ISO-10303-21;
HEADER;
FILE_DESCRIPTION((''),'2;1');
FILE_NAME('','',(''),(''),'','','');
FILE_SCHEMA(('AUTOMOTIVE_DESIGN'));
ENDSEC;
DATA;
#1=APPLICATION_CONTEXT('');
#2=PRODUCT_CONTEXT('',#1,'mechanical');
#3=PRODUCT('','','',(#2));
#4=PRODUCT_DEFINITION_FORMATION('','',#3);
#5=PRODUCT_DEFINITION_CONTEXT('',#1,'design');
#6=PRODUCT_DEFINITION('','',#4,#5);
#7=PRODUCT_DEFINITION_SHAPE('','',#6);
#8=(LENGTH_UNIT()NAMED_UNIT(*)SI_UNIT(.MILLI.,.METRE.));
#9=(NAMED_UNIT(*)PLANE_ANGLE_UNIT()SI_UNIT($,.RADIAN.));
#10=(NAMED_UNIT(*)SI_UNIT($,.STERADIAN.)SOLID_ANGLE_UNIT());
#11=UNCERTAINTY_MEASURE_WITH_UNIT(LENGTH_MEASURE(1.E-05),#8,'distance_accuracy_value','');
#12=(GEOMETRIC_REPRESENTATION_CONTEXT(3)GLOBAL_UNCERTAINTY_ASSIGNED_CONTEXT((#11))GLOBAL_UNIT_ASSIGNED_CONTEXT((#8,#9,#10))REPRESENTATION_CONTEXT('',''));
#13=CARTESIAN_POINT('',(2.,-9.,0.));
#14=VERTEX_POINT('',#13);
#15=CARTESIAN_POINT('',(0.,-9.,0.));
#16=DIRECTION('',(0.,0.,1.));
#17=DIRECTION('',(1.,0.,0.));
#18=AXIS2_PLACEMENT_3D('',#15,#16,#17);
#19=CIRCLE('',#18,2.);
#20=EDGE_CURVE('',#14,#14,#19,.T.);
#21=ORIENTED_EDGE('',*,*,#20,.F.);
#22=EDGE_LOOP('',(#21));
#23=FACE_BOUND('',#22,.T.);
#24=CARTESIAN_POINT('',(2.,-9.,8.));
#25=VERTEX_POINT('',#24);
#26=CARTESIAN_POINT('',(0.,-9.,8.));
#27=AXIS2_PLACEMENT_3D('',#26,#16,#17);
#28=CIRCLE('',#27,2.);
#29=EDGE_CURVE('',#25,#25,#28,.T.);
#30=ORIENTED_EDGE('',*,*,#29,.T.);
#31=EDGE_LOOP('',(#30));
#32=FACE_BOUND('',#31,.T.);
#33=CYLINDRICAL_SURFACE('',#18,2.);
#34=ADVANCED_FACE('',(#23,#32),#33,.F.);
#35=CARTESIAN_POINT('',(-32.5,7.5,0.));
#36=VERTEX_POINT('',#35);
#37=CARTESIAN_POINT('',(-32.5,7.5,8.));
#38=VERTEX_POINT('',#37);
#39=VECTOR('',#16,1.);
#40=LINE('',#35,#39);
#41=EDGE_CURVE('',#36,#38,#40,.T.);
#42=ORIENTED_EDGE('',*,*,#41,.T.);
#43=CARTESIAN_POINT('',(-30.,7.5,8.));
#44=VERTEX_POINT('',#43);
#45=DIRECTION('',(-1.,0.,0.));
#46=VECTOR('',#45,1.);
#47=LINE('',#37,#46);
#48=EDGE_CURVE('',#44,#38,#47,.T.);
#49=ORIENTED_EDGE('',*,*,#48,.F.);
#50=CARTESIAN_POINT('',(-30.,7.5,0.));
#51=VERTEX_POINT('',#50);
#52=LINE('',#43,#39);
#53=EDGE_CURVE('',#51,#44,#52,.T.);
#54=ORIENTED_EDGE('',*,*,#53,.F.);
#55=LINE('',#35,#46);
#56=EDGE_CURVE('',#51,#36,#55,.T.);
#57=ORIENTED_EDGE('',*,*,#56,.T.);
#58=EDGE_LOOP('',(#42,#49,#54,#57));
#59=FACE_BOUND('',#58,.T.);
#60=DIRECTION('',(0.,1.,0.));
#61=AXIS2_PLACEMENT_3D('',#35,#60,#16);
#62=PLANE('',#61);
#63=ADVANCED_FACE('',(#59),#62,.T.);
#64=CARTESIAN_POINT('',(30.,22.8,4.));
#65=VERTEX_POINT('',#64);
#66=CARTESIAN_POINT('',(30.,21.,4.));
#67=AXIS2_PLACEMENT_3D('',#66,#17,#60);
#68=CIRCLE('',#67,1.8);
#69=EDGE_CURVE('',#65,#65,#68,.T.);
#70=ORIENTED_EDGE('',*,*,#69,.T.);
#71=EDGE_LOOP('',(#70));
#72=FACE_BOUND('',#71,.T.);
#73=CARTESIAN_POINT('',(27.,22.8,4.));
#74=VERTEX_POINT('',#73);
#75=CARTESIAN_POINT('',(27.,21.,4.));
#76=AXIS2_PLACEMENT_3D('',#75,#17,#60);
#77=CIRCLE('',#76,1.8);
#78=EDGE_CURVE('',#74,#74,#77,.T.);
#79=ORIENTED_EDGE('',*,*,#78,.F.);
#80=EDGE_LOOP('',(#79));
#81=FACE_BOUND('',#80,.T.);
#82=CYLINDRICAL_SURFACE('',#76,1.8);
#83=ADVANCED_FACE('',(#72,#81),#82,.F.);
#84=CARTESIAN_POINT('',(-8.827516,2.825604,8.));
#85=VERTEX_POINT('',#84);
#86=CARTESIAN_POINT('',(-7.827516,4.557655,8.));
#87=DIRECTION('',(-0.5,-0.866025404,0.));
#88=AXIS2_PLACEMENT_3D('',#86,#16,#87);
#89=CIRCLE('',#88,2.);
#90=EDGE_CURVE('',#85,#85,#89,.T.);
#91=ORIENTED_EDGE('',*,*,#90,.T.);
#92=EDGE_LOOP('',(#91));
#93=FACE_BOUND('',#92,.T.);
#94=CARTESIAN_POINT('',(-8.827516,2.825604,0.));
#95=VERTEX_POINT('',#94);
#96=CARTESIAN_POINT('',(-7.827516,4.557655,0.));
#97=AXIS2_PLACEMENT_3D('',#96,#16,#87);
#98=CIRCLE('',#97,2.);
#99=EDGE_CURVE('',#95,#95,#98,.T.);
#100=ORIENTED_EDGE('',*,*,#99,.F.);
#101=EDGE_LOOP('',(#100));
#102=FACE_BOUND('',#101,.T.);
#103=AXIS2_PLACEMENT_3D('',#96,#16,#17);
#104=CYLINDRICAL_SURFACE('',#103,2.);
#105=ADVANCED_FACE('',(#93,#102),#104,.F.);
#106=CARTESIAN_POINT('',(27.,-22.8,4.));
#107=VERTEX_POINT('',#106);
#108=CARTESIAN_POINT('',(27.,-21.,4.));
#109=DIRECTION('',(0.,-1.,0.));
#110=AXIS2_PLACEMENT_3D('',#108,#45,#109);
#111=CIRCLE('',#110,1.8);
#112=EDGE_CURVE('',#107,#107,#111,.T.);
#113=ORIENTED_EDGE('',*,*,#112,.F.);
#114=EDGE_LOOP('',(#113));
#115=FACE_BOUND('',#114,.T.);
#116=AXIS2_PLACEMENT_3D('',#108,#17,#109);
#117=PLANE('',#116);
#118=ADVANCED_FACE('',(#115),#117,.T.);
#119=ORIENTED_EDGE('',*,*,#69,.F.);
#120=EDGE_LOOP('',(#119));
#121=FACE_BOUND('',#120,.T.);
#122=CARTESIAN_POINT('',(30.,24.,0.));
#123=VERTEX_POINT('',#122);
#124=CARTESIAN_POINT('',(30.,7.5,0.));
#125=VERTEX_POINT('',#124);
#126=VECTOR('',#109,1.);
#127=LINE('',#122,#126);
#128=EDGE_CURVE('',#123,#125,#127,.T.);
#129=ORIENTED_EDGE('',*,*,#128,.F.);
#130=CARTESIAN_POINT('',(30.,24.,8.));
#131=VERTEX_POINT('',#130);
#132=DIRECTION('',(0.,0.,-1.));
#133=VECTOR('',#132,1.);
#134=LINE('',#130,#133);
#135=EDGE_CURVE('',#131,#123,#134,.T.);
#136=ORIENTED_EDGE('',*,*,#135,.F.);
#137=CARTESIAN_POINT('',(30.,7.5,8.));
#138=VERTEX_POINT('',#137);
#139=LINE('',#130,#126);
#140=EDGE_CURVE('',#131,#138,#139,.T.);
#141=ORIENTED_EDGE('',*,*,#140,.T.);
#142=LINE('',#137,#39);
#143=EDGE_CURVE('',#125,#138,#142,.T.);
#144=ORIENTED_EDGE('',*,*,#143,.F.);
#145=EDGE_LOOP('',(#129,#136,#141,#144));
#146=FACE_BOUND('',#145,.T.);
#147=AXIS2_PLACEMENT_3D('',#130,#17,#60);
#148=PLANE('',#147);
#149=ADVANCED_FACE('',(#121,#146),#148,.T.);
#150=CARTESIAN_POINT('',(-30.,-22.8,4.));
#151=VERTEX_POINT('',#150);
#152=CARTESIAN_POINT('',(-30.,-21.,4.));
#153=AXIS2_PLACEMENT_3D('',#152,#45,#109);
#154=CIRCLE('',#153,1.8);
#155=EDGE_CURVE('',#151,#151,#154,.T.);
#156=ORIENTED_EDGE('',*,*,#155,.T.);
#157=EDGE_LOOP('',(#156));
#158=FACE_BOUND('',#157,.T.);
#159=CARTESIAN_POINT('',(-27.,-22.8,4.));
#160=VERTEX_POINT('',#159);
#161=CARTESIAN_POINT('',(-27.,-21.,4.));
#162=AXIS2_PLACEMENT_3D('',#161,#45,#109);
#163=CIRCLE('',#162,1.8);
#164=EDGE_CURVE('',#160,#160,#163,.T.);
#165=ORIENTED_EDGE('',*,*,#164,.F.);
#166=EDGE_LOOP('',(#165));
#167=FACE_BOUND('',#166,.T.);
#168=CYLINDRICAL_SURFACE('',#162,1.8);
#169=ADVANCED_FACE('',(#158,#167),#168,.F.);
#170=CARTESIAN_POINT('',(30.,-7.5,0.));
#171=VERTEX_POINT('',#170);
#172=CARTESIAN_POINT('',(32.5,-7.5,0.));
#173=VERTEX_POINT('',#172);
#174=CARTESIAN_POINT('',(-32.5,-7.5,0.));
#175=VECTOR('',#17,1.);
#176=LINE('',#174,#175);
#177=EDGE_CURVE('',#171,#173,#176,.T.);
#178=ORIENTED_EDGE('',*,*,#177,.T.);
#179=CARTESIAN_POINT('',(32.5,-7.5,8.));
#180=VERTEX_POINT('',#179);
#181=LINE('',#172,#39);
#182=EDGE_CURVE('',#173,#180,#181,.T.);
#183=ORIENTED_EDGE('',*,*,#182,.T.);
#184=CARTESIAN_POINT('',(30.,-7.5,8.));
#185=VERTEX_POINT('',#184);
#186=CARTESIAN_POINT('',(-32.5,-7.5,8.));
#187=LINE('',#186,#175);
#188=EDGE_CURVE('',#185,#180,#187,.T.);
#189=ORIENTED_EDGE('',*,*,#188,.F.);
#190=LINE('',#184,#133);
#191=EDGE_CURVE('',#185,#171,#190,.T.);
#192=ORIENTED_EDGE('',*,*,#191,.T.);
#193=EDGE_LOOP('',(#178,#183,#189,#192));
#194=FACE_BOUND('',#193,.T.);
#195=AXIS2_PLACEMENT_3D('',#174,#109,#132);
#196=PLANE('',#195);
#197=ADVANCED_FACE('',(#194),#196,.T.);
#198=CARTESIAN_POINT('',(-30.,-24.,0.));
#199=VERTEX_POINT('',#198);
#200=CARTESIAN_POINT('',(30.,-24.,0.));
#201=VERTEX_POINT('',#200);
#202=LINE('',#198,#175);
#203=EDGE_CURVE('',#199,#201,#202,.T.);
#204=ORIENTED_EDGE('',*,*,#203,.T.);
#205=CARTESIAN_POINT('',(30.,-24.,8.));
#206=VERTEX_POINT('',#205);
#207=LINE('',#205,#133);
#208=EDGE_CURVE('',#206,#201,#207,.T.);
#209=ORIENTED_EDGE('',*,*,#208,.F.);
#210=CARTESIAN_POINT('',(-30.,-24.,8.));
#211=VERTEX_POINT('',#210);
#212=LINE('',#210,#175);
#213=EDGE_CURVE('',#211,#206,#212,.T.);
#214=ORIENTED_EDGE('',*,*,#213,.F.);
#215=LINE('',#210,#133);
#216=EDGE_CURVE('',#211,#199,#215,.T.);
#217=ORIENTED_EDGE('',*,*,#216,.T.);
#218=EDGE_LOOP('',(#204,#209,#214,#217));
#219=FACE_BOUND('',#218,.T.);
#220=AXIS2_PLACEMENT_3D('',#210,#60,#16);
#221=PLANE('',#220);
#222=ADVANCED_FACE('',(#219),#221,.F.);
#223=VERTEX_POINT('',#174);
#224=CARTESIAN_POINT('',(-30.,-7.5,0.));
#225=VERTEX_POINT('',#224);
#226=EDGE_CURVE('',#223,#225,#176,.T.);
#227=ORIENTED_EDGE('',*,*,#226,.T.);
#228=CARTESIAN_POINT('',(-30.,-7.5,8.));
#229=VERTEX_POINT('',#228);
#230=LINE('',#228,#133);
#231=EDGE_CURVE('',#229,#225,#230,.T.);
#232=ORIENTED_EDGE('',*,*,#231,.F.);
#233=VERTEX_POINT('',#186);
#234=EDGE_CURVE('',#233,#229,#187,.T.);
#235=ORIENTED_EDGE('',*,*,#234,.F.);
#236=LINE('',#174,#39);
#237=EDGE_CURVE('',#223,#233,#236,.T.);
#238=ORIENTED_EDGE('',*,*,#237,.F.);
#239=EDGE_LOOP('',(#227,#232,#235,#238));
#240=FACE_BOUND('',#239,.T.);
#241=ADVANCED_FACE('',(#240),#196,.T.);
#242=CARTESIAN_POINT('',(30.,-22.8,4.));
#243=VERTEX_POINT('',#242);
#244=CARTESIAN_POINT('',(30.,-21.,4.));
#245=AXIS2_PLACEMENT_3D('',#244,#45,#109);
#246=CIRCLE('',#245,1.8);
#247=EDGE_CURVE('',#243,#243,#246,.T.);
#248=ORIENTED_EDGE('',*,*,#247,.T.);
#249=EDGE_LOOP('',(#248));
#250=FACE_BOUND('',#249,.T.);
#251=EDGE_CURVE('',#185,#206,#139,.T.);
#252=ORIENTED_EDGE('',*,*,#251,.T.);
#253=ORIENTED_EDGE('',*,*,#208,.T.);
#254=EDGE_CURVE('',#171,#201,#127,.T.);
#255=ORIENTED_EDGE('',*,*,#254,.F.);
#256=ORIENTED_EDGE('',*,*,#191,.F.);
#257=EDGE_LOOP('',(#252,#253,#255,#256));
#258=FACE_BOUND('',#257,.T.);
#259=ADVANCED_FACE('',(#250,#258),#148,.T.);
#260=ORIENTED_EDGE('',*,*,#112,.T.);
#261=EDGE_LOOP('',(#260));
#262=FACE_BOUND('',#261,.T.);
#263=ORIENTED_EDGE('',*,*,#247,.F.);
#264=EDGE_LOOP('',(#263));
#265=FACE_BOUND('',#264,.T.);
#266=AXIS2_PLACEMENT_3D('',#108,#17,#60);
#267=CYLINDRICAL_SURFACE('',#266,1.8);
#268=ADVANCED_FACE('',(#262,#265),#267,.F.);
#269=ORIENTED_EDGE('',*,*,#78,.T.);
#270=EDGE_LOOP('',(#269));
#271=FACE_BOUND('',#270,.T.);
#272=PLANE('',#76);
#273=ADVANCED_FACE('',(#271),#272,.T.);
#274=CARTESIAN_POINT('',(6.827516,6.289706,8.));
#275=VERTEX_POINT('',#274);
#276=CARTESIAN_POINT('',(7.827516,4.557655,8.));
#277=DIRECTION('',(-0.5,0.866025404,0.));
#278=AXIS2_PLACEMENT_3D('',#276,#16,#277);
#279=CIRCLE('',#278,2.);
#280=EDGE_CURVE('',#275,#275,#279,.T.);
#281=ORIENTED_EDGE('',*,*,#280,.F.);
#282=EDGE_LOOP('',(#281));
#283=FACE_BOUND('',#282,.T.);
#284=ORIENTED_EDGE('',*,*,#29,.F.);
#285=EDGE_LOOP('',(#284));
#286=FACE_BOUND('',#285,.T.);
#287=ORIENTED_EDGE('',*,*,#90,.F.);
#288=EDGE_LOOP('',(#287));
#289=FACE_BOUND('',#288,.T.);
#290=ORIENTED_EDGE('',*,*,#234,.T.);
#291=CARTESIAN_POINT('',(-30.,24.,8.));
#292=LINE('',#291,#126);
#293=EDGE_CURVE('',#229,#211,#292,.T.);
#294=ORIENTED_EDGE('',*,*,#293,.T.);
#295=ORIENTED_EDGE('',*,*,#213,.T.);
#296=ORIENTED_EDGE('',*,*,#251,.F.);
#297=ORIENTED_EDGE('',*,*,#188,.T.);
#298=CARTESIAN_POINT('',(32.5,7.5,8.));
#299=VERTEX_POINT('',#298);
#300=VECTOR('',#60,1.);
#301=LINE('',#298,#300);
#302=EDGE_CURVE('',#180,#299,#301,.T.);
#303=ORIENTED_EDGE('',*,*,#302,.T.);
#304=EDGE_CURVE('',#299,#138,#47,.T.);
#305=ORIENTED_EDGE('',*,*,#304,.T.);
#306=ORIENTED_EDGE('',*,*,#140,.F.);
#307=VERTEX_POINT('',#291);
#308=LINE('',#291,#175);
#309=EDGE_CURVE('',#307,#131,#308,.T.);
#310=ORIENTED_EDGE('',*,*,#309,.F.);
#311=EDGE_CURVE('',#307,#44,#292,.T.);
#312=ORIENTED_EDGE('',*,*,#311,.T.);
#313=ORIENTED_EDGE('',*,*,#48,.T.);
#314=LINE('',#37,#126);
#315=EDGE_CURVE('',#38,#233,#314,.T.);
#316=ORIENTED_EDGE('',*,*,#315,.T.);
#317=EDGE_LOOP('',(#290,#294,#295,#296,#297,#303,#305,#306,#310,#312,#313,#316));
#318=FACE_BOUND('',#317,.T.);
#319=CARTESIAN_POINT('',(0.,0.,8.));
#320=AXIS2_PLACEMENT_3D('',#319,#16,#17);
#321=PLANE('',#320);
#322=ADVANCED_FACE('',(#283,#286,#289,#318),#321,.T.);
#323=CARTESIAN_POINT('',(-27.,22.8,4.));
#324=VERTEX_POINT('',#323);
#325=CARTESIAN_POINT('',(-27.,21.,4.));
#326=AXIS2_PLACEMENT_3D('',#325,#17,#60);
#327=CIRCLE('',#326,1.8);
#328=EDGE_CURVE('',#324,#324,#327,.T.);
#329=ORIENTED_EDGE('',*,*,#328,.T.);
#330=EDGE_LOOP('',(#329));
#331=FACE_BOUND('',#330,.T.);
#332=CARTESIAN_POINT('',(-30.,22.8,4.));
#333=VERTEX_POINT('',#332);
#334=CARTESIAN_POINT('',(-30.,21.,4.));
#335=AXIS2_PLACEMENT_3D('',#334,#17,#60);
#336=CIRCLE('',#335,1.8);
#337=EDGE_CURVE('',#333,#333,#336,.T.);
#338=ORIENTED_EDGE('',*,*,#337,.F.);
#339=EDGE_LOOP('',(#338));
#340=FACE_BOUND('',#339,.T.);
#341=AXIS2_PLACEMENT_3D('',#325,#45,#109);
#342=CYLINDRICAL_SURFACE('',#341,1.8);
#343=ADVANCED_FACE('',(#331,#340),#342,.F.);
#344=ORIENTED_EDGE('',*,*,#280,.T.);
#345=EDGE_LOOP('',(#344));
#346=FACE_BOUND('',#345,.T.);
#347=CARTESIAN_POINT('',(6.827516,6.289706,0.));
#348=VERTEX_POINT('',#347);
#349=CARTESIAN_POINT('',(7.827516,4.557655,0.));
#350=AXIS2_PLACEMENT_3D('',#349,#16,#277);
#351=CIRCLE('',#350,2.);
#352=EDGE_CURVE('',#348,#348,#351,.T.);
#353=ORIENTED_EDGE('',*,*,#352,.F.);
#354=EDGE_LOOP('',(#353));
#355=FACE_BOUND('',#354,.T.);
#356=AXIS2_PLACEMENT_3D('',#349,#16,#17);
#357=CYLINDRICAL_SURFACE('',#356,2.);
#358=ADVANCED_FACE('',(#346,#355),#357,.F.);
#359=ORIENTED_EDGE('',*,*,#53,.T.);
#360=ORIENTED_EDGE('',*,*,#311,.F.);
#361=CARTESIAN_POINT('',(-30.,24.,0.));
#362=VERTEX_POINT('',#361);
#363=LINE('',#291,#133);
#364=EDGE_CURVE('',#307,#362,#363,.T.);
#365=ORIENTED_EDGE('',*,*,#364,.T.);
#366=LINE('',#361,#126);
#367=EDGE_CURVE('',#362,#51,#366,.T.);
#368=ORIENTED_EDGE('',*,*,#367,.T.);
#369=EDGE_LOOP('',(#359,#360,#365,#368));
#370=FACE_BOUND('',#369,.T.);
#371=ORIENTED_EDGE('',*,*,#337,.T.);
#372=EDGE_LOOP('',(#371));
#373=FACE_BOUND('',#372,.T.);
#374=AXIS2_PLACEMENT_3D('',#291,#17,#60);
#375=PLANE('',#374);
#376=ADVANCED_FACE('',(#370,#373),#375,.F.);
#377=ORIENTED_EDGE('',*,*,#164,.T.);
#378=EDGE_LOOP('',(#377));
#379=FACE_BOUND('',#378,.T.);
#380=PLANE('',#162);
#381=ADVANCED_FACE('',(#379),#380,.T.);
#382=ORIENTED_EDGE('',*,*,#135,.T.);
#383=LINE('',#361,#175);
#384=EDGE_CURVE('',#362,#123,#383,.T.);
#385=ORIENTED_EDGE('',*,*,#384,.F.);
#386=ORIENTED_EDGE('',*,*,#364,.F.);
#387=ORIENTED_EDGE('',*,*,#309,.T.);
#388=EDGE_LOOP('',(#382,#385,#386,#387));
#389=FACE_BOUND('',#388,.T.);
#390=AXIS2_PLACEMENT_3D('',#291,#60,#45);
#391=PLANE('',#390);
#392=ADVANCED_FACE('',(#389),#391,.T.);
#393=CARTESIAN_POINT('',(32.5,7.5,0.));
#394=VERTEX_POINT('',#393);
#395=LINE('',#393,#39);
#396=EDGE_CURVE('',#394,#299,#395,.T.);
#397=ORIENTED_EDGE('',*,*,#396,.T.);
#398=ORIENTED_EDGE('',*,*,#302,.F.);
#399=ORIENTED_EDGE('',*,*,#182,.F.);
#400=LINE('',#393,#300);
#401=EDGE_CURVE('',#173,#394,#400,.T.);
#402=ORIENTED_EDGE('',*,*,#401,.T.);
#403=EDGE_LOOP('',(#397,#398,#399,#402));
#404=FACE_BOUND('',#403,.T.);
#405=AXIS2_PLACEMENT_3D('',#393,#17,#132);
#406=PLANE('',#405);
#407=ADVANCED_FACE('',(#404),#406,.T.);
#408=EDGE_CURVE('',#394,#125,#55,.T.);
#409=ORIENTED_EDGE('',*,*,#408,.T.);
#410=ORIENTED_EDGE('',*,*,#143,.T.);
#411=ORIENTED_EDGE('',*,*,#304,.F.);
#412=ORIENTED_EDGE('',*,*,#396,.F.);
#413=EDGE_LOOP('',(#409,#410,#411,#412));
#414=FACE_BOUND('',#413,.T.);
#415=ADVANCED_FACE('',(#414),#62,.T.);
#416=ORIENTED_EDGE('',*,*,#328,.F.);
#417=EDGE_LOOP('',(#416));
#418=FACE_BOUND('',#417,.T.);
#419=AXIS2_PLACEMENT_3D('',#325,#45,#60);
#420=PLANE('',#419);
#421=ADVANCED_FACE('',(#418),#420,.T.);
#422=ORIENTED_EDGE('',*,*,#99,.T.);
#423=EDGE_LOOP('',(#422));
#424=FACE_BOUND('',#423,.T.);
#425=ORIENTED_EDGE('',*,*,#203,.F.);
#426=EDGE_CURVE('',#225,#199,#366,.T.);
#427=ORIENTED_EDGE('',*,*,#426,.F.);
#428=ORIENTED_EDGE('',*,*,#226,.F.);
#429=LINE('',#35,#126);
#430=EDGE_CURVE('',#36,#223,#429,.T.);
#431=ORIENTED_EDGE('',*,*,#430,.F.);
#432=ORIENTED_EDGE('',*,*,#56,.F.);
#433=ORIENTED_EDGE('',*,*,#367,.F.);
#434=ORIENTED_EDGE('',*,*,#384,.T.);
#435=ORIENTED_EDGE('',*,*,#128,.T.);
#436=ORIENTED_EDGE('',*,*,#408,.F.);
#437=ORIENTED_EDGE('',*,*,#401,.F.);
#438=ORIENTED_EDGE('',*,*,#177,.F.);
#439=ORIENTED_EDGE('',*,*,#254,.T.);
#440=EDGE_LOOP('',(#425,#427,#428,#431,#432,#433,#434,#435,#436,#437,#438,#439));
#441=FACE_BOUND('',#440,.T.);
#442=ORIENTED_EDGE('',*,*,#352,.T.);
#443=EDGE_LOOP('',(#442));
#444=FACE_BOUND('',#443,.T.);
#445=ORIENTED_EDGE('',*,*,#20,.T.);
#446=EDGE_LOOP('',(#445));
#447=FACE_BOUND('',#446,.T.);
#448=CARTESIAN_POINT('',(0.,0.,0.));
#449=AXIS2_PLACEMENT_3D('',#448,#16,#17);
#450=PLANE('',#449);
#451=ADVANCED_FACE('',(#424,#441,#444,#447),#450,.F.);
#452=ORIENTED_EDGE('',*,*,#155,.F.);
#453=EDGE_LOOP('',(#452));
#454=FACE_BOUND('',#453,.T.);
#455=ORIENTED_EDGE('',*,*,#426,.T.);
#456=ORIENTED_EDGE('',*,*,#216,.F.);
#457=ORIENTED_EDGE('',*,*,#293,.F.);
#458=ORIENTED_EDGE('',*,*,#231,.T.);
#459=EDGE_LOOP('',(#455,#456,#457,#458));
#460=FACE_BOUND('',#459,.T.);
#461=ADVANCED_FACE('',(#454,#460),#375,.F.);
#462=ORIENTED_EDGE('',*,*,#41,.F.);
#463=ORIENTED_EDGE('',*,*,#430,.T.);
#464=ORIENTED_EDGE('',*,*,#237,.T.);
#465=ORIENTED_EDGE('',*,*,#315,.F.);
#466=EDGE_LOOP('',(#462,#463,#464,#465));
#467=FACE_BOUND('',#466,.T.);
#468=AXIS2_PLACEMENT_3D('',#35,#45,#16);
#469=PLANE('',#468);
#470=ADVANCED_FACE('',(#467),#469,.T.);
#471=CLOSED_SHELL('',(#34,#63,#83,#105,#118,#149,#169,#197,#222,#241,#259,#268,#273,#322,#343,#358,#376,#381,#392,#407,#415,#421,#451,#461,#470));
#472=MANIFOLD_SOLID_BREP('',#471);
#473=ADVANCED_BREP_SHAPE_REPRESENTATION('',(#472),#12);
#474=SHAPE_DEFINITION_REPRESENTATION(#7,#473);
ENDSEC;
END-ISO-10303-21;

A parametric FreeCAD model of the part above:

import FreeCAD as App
import Part
import Sketcher

doc = App.newDocument("Part")
body = doc.addObject("PartDesign::Body", "Body")

sketch1 = body.newObject("Sketcher::SketchObject", "Sketch")
sketch1.AttachmentSupport = (doc.getObject("XY_Plane"), [""])
sketch1.MapMode = "FlatFace"
sketch1.addGeometry([
    Part.LineSegment(App.Vector(-30, 24, 0), App.Vector(-30, -24, 0)),
    Part.LineSegment(App.Vector(-30, -24, 0), App.Vector(30, -24, 0)),
    Part.LineSegment(App.Vector(30, -24, 0), App.Vector(30, 24, 0)),
    Part.LineSegment(App.Vector(30, 24, 0), App.Vector(-30, 24, 0)),
], False)
sketch1.addConstraint([
    Sketcher.Constraint("Coincident", 0, 2, 1, 1),
    Sketcher.Constraint("Coincident", 1, 2, 2, 1),
    Sketcher.Constraint("Coincident", 2, 2, 3, 1),
    Sketcher.Constraint("Coincident", 3, 2, 0, 1),
    Sketcher.Constraint("Vertical", 0),
    Sketcher.Constraint("Horizontal", 1),
    Sketcher.Constraint("Vertical", 2),
    Sketcher.Constraint("Horizontal", 3),
    Sketcher.Constraint("Symmetric", 0, 2, 2, 2, -1, 1),
    Sketcher.Constraint("DistanceX", 1, 1, 1, 2, 60.0),
    Sketcher.Constraint("DistanceY", 0, 2, 0, 1, 48.0),
])
pad1 = body.newObject("PartDesign::Pad", "Pad")
pad1.Profile = sketch1
pad1.Length = 8

sketch2 = body.newObject("Sketcher::SketchObject", "Sketch001")
sketch2.AttachmentSupport = (doc.getObject("XY_Plane"), [""])
sketch2.MapMode = "FlatFace"
sketch2.AttachmentOffset = App.Placement(App.Vector(0, 0, 8), App.Rotation())
sketch2.addGeometry([
    Part.LineSegment(App.Vector(-32, 8, 0), App.Vector(-32, -8, 0)),
    Part.LineSegment(App.Vector(-32, -8, 0), App.Vector(32, -8, 0)),
    Part.LineSegment(App.Vector(32, -8, 0), App.Vector(32, 8, 0)),
    Part.LineSegment(App.Vector(32, 8, 0), App.Vector(-32, 8, 0)),
], False)
sketch2.addConstraint([
    Sketcher.Constraint("Coincident", 0, 2, 1, 1),
    Sketcher.Constraint("Coincident", 1, 2, 2, 1),
    Sketcher.Constraint("Coincident", 2, 2, 3, 1),
    Sketcher.Constraint("Coincident", 3, 2, 0, 1),
    Sketcher.Constraint("Vertical", 0),
    Sketcher.Constraint("Horizontal", 1),
    Sketcher.Constraint("Vertical", 2),
    Sketcher.Constraint("Horizontal", 3),
    Sketcher.Constraint("Symmetric", 0, 2, 2, 2, -1, 1),
    Sketcher.Constraint("DistanceX", 1, 1, 1, 2, 65.0),
    Sketcher.Constraint("DistanceY", 0, 2, 0, 1, 15.0),
])
pad2 = body.newObject("PartDesign::Pad", "Pad001")
pad2.Profile = sketch2
pad2.Length = 8
pad2.Reversed = True

sketch3 = body.newObject("Sketcher::SketchObject", "Sketch002")
sketch3.AttachmentSupport = (doc.getObject("XY_Plane"), [""])
sketch3.MapMode = "FlatFace"
sketch3.AttachmentOffset = App.Placement(App.Vector(0, 0, 8), App.Rotation())
sketch3.addGeometry(Part.Circle(App.Vector(0, -9, 0), App.Vector(0, 0, 1), 2), False)
sketch3.addConstraint([
    Sketcher.Constraint("PointOnObject", 0, 3, -2),
    Sketcher.Constraint("Diameter", 0, 4.0),
    Sketcher.Constraint("DistanceY", 0, 3, -1, 1, 9.0),
])
pocket1 = body.newObject("PartDesign::Pocket", "Pocket")
pocket1.Profile = sketch3
pocket1.Length = 8
doc.recompute()

datumline = body.newObject("PartDesign::Line", "DatumLine")
datumline.Placement = App.Placement(App.Vector(0, 0.038437, 0), App.Rotation(App.Vector(0, 0, 1), App.Vector(0, 0, 1)))
polarpattern = body.newObject("PartDesign::PolarPattern", "PolarPattern")
polarpattern.Originals = [pocket1]
polarpattern.Axis = (datumline, [""])
polarpattern.Angle = 360
polarpattern.Occurrences = 3
body.Tip = polarpattern

sketch4 = body.newObject("Sketcher::SketchObject", "Sketch003")
sketch4.AttachmentSupport = (doc.getObject("YZ_Plane"), [""])
sketch4.MapMode = "FlatFace"
sketch4.AttachmentOffset = App.Placement(App.Vector(0, 0, 30), App.Rotation())
sketch4.addGeometry(Part.Circle(App.Vector(21, 4, 0), App.Vector(0, 0, 1), 1.8), False)
sketch4.addConstraint([
    Sketcher.Constraint("Diameter", 0, 3.6),
    Sketcher.Constraint("DistanceX", -1, 1, 0, 3, 21.0),
    Sketcher.Constraint("DistanceY", -1, 1, 0, 3, 4.0),
])
pocket2 = body.newObject("PartDesign::Pocket", "Pocket001")
pocket2.Profile = sketch4
pocket2.Length = 3
doc.recompute()

mirrored = body.newObject("PartDesign::Mirrored", "Mirrored")
mirrored.Originals = [pocket2]
mirrored.MirrorPlane = (doc.getObject("XZ_Plane"), [""])
body.Tip = mirrored
doc.recompute()

mirrored2 = body.newObject("PartDesign::Mirrored", "Mirrored001")
mirrored2.Originals = [pocket2]
mirrored2.MirrorPlane = (doc.getObject("YZ_Plane"), [""])
body.Tip = mirrored2

sketch5 = body.newObject("Sketcher::SketchObject", "Sketch004")
sketch5.AttachmentSupport = (doc.getObject("YZ_Plane"), [""])
sketch5.MapMode = "FlatFace"
sketch5.AttachmentOffset = App.Placement(App.Vector(0, 0, -30), App.Rotation())
sketch5.addGeometry(Part.Circle(App.Vector(-21, 4, 0), App.Vector(0, 0, 1), 1.8), False)
sketch5.addConstraint([
    Sketcher.Constraint("Diameter", 0, 3.6),
    Sketcher.Constraint("DistanceX", 0, 3, -1, 1, 21.0),
    Sketcher.Constraint("DistanceY", -1, 1, 0, 3, 4.0),
])
pocket3 = body.newObject("PartDesign::Pocket", "Pocket002")
pocket3.Profile = sketch5
pocket3.Length = 3
pocket3.Reversed = True

doc.recompute()
